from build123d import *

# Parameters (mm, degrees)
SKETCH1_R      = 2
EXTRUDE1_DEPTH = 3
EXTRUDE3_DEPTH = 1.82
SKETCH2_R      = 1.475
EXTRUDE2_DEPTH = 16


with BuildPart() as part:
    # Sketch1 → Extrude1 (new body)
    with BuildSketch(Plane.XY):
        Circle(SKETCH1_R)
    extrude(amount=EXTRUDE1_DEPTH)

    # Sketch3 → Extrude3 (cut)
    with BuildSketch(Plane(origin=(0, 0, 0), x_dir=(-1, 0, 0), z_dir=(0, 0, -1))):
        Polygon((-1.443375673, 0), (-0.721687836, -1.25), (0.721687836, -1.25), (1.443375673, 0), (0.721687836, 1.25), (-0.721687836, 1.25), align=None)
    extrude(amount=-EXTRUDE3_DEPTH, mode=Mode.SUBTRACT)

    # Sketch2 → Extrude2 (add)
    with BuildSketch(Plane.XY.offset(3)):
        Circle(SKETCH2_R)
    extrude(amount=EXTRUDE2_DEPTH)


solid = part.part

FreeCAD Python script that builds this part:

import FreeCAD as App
import Part
import Sketcher
from FreeCAD import Vector
Q = App.Units.Quantity


def add_polygon(sketch, points):
    """Adds a closed chain of lines whose ends are joined by coincident constraints."""
    first, n = sketch.GeometryCount, len(points)
    for a, b in zip(points, points[1:] + points[:1]):
        sketch.addGeometry(Part.LineSegment(App.Vector(*a, 0), App.Vector(*b, 0)), False)
    for i in range(n):
        sketch.addConstraint(Sketcher.Constraint("Coincident", first + i, 2, first + (i + 1) % n, 1))

doc = App.newDocument("Part")
body = doc.addObject("PartDesign::Body", "Body")

sketch1 = doc.addObject("Sketcher::SketchObject", "Sketch")
body.addObject(sketch1)
sketch1.AttachmentSupport = (doc.XY_Plane, [""])
sketch1.MapMode = "FlatFace"
sketch1.addGeometry(Part.Circle(Vector(0, 0, 0), Vector(0, 0, 1), 2), False)
sketch1.addConstraint([
    Sketcher.Constraint("Coincident", 0, 3, -1, 1),
    Sketcher.Constraint("Diameter", 0, 4.0),
])
pad1 = doc.addObject("PartDesign::Pad", "Pad")
body.addObject(pad1)
pad1.Profile = sketch1
pad1.Length = 3

sketch2 = doc.addObject("Sketcher::SketchObject", "Sketch001")
body.addObject(sketch2)
sketch2.AttachmentSupport = (doc.XY_Plane, [""])
sketch2.MapMode = "FlatFace"
add_polygon(sketch2, [(1.4, 0), (0.7, -1.2), (-0.7, -1.2), (-1.4, 0), (-0.7, 1.2), (0.7, 1.2)])
sketch2.addConstraint([
    Sketcher.Constraint("Horizontal", 1),
    Sketcher.Constraint("Horizontal", 4),
    Sketcher.Constraint("Symmetric", 0, 2, 3, 2, -1, 1),
    Sketcher.Constraint("Symmetric", 2, 2, 5, 2, -1, 1),
    Sketcher.Constraint("PointOnObject", 2, 2, -1),
    Sketcher.Constraint("Parallel", 2, 5),
    Sketcher.Constraint("Vertical", 1, 2, 3, 2),
    Sketcher.Constraint("Angle", 0, Q("-120 deg")),
    Sketcher.Constraint("DistanceY", 1, 2, 3, 2, 2.5),
    Sketcher.Constraint("DistanceX", 1, 2, 1, 1, 1.443376),
])
pocket1 = doc.addObject("PartDesign::Pocket", "Pocket")
body.addObject(pocket1)
pocket1.Profile = sketch2
pocket1.Length = 1.82
pocket1.Reversed = True

sketch3 = doc.addObject("Sketcher::SketchObject", "Sketch002")
body.addObject(sketch3)
sketch3.AttachmentSupport = (doc.XY_Plane, [""])
sketch3.MapMode = "FlatFace"
sketch3.AttachmentOffset = App.Placement(Vector(0, 0, 3), App.Rotation())
sketch3.addGeometry(Part.Circle(Vector(0, 0, 0), Vector(0, 0, 1), 1.5), False)
sketch3.addConstraint([
    Sketcher.Constraint("Coincident", 0, 3, -1, 1),
    Sketcher.Constraint("Diameter", 0, 2.95),
])
pad2 = doc.addObject("PartDesign::Pad", "Pad001")
body.addObject(pad2)
pad2.Profile = sketch3
pad2.Length = 16

doc.recompute()
